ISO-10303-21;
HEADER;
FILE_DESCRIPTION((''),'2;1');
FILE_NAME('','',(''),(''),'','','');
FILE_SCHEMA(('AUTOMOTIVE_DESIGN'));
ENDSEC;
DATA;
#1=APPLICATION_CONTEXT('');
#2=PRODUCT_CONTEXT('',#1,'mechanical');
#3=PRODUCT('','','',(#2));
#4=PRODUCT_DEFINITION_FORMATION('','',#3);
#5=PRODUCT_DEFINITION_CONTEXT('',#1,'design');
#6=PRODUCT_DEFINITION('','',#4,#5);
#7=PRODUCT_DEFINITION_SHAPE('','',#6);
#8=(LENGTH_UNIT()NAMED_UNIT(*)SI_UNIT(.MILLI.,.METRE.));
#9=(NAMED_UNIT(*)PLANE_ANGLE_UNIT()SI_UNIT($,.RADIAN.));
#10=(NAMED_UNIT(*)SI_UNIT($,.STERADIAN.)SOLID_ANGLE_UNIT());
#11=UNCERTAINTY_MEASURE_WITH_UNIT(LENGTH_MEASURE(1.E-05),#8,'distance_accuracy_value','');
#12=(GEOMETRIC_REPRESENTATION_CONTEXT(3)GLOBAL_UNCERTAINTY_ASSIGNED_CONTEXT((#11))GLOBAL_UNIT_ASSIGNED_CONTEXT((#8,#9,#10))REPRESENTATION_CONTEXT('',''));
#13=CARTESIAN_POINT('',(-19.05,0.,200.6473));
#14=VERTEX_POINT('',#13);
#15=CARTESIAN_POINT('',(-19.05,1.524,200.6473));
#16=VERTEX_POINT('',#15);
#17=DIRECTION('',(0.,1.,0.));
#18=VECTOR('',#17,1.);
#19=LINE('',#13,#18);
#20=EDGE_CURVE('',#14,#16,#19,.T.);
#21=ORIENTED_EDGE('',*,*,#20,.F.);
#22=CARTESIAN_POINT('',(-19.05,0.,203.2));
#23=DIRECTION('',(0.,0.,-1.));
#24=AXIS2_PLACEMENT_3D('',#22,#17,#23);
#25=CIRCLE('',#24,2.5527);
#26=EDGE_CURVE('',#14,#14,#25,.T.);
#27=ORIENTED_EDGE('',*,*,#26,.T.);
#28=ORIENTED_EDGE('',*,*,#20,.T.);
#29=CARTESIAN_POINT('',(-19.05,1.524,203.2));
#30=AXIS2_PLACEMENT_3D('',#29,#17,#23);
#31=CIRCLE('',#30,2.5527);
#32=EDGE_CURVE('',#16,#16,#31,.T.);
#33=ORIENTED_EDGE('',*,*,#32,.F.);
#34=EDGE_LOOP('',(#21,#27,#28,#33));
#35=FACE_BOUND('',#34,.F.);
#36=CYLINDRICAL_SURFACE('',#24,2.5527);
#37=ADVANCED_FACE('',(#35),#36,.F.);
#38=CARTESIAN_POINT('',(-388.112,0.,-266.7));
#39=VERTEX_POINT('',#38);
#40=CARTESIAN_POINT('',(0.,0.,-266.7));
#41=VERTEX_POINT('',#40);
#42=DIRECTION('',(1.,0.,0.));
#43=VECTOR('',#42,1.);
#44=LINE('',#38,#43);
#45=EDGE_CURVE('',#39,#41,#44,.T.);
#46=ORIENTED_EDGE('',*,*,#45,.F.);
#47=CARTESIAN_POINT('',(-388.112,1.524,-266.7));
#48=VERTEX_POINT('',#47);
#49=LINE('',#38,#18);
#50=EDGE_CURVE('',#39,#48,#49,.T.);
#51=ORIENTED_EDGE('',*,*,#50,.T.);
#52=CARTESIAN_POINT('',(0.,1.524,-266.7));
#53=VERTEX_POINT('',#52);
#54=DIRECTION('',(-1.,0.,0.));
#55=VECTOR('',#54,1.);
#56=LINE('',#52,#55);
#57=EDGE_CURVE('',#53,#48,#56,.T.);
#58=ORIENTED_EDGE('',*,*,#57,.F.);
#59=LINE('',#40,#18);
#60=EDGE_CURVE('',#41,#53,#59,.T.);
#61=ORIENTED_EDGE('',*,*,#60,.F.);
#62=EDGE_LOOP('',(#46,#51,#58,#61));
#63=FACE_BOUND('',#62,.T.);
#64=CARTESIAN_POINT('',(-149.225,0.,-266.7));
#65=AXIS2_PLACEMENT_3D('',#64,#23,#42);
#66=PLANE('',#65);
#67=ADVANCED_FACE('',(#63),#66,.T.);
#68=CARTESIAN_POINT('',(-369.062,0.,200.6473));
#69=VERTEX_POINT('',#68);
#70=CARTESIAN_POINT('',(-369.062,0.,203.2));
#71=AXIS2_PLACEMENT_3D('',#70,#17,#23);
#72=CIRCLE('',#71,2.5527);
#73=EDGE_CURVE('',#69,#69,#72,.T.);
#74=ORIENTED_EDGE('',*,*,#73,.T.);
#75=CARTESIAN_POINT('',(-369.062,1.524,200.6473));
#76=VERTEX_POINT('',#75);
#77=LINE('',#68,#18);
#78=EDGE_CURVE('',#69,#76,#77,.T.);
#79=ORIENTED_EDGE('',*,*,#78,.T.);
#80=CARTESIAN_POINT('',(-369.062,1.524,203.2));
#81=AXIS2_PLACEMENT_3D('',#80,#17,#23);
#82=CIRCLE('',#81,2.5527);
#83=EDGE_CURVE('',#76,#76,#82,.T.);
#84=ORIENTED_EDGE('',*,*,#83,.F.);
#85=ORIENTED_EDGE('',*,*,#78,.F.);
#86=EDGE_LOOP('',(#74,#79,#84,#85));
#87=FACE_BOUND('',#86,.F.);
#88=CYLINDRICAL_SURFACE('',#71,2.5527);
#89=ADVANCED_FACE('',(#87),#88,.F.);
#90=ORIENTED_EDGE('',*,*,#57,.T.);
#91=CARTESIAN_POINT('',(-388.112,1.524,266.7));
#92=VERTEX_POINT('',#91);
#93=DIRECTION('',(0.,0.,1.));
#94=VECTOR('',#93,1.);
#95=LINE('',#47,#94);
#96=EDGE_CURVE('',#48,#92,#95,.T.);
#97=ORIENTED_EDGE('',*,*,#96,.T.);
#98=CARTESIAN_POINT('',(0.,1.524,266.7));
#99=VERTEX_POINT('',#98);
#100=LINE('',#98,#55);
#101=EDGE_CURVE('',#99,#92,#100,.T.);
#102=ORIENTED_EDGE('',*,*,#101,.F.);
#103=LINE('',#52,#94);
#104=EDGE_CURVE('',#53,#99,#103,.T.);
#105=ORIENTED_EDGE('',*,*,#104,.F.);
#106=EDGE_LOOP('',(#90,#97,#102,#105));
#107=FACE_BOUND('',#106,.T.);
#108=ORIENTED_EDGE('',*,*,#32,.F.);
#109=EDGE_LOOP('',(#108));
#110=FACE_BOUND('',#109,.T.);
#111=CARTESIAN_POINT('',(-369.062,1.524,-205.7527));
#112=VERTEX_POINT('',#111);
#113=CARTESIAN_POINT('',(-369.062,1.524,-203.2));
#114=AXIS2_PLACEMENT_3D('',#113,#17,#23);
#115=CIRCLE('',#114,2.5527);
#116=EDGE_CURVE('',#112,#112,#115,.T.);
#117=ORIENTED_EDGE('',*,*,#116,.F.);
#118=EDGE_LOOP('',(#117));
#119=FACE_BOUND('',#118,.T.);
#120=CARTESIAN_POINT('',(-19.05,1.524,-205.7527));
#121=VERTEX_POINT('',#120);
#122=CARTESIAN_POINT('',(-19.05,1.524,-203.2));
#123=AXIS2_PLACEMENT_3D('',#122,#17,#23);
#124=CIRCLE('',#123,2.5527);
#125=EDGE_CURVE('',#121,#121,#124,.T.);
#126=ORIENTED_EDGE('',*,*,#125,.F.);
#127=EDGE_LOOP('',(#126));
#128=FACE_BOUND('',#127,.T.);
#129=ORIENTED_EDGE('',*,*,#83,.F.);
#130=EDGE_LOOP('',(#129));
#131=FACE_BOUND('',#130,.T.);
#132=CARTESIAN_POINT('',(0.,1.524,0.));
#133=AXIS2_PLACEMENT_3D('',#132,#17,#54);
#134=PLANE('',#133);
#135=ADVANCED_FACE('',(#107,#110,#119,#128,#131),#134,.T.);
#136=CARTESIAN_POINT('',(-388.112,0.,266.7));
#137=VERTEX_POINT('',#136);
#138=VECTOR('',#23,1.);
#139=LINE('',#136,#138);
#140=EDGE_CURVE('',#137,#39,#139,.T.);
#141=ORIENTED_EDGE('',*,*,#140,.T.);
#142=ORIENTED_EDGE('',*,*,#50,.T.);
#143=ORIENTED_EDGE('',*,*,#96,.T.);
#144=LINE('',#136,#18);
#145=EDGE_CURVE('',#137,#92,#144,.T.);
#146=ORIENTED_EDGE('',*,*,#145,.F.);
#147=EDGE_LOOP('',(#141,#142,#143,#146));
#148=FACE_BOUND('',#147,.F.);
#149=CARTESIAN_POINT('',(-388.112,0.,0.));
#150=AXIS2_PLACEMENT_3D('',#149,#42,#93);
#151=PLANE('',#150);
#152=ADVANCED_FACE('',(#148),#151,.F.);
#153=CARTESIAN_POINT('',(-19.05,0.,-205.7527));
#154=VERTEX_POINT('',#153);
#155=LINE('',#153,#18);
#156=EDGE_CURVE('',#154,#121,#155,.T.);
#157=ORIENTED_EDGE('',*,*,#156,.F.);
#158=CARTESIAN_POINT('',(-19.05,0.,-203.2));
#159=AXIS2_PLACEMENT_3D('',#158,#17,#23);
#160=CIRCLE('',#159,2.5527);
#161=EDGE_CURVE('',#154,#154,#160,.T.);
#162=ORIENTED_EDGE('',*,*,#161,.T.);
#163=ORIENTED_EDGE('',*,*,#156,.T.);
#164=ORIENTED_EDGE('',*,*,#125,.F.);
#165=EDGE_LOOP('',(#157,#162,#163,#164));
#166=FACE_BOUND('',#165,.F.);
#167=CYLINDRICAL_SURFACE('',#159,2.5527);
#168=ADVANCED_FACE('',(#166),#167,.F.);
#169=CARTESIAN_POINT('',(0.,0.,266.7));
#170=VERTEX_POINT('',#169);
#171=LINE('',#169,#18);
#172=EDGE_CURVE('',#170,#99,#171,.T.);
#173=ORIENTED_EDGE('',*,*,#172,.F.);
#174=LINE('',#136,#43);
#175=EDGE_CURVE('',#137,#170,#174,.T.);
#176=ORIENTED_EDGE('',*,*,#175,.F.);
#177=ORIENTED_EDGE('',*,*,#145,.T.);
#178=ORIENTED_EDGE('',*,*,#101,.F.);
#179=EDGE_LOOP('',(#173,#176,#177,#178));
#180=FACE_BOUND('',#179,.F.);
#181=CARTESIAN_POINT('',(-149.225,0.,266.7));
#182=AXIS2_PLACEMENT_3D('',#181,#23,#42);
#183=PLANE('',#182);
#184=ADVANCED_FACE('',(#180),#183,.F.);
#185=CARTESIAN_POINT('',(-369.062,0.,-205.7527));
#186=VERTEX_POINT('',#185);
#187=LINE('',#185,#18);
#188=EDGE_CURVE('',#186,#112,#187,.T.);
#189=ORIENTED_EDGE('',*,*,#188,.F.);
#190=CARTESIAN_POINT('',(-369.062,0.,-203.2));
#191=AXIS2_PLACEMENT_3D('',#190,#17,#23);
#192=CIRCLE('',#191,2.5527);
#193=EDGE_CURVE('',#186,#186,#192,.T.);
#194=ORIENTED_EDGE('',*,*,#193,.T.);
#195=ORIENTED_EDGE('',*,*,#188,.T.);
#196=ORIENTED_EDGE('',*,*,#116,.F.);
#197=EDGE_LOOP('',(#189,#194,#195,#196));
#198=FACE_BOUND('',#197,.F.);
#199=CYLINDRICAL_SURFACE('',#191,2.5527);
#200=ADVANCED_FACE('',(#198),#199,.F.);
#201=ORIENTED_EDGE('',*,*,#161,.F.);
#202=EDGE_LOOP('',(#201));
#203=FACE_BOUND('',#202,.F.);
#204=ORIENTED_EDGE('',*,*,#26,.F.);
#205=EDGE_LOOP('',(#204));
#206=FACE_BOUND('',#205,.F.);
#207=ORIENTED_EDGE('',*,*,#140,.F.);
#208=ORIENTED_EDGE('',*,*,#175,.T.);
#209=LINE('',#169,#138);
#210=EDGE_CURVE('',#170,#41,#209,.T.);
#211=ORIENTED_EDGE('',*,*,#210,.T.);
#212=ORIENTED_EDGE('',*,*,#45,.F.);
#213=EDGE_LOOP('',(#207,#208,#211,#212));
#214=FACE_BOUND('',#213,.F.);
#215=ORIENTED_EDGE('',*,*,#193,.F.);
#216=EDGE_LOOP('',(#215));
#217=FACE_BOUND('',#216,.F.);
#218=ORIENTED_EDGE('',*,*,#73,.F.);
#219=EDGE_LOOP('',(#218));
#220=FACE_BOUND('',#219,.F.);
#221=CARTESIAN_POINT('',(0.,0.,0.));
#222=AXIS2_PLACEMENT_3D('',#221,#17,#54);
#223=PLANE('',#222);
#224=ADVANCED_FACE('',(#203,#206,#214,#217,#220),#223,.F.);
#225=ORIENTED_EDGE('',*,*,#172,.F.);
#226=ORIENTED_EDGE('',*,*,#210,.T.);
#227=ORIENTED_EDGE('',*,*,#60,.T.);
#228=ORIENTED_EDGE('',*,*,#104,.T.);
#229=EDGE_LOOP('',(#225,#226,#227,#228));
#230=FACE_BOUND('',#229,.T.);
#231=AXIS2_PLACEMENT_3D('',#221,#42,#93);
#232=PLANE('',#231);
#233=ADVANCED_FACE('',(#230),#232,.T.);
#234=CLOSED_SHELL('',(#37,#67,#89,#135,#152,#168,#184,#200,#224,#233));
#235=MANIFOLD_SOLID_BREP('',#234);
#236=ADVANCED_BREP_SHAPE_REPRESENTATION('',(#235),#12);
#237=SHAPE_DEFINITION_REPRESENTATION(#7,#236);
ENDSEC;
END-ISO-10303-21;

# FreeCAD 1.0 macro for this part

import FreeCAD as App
import Part
import Sketcher

V = App.Vector
Q = App.Units.Quantity


def add_polygon(sketch, points):
    """Adds a closed chain of lines whose ends are joined by coincident constraints."""
    first, n = sketch.GeometryCount, len(points)
    for a, b in zip(points, points[1:] + points[:1]):
        sketch.addGeometry(Part.LineSegment(App.Vector(*a, 0), App.Vector(*b, 0)), False)
    for i in range(n):
        sketch.addConstraint(Sketcher.Constraint("Coincident", first + i, 2, first + (i + 1) % n, 1))

doc = App.newDocument("Part")
body = doc.addObject("PartDesign::Body", "Body")

sketch1 = doc.addObject("Sketcher::SketchObject", "Sketch")
body.addObject(sketch1)
sketch1.AttachmentSupport = (doc.XZ_Plane, [""])
sketch1.MapMode = "FlatFace"
add_polygon(sketch1, [(0, 267), (0, -267), (-388, -267), (-388, 267)])
sketch1.addConstraint(Sketcher.Constraint("Vertical", 0))
sketch1.addConstraint(Sketcher.Constraint("Horizontal", 1))
sketch1.addConstraint(Sketcher.Constraint("Vertical", 2))
sketch1.addConstraint(Sketcher.Constraint("Horizontal", 3))
sketch1.addConstraint(Sketcher.Constraint("Symmetric", 0, 2, 3, 2, -1, 1))
sketch1.addConstraint(Sketcher.Constraint("DistanceX", 1, 2, 1, 1, Q("15.28 in")))
sketch1.addConstraint(Sketcher.Constraint("DistanceY", 0, 2, -1, 1, Q("10.5 in")))
pad1 = doc.addObject("PartDesign::Pad", "Pad")
body.addObject(pad1)
pad1.Profile = sketch1
pad1.Length = Q("0.06 in")
pad1.Reversed = True

sketch2 = doc.addObject("Sketcher::SketchObject", "Sketch001")
body.addObject(sketch2)
sketch2.AttachmentSupport = (doc.XZ_Plane, [""])
sketch2.MapMode = "FlatFace"
sketch2.addGeometry(Part.Circle(V(-369.1, 203.2, 0), V(0, 0, 1), 2.6), False)
sketch2.addGeometry(Part.Circle(V(-369.1, -203.2, 0), V(0, 0, 1), 2.6), False)
sketch2.addGeometry(Part.Circle(V(-19.1, -203.2, 0), V(0, 0, 1), 2.6), False)
sketch2.addGeometry(Part.Circle(V(-19.1, 203.2, 0), V(0, 0, 1), 2.6), False)
sketch2.addConstraint(Sketcher.Constraint("Equal", 0, 1))
sketch2.addConstraint(Sketcher.Constraint("Equal", 1, 2))
sketch2.addConstraint(Sketcher.Constraint("Equal", 2, 3))
sketch2.addConstraint(Sketcher.Constraint("Symmetric", 0, 3, 1, 3, -1))
sketch2.addConstraint(Sketcher.Constraint("Symmetric", 2, 3, 3, 3, -1))
sketch2.addConstraint(Sketcher.Constraint("Horizontal", 1, 3, 2, 3))
sketch2.addConstraint(Sketcher.Constraint("Diameter", 0, Q("0.201 in")))
sketch2.addConstraint(Sketcher.Constraint("DistanceY", -1, 1, 0, 3, Q("8 in")))
sketch2.addConstraint(Sketcher.Constraint("DistanceX", 0, 3, -1, 1, Q("14.53 in")))
sketch2.addConstraint(Sketcher.Constraint("DistanceX", 2, 3, -1, 1, Q("0.75 in")))
doc.recompute()
hole = doc.addObject("PartDesign::Hole", "Hole")
body.addObject(hole)
hole.Profile = sketch2
hole.ThreadType = "None"
hole.Diameter = Q("0.201 in")
hole.DepthType = "ThroughAll"

doc.recompute()
